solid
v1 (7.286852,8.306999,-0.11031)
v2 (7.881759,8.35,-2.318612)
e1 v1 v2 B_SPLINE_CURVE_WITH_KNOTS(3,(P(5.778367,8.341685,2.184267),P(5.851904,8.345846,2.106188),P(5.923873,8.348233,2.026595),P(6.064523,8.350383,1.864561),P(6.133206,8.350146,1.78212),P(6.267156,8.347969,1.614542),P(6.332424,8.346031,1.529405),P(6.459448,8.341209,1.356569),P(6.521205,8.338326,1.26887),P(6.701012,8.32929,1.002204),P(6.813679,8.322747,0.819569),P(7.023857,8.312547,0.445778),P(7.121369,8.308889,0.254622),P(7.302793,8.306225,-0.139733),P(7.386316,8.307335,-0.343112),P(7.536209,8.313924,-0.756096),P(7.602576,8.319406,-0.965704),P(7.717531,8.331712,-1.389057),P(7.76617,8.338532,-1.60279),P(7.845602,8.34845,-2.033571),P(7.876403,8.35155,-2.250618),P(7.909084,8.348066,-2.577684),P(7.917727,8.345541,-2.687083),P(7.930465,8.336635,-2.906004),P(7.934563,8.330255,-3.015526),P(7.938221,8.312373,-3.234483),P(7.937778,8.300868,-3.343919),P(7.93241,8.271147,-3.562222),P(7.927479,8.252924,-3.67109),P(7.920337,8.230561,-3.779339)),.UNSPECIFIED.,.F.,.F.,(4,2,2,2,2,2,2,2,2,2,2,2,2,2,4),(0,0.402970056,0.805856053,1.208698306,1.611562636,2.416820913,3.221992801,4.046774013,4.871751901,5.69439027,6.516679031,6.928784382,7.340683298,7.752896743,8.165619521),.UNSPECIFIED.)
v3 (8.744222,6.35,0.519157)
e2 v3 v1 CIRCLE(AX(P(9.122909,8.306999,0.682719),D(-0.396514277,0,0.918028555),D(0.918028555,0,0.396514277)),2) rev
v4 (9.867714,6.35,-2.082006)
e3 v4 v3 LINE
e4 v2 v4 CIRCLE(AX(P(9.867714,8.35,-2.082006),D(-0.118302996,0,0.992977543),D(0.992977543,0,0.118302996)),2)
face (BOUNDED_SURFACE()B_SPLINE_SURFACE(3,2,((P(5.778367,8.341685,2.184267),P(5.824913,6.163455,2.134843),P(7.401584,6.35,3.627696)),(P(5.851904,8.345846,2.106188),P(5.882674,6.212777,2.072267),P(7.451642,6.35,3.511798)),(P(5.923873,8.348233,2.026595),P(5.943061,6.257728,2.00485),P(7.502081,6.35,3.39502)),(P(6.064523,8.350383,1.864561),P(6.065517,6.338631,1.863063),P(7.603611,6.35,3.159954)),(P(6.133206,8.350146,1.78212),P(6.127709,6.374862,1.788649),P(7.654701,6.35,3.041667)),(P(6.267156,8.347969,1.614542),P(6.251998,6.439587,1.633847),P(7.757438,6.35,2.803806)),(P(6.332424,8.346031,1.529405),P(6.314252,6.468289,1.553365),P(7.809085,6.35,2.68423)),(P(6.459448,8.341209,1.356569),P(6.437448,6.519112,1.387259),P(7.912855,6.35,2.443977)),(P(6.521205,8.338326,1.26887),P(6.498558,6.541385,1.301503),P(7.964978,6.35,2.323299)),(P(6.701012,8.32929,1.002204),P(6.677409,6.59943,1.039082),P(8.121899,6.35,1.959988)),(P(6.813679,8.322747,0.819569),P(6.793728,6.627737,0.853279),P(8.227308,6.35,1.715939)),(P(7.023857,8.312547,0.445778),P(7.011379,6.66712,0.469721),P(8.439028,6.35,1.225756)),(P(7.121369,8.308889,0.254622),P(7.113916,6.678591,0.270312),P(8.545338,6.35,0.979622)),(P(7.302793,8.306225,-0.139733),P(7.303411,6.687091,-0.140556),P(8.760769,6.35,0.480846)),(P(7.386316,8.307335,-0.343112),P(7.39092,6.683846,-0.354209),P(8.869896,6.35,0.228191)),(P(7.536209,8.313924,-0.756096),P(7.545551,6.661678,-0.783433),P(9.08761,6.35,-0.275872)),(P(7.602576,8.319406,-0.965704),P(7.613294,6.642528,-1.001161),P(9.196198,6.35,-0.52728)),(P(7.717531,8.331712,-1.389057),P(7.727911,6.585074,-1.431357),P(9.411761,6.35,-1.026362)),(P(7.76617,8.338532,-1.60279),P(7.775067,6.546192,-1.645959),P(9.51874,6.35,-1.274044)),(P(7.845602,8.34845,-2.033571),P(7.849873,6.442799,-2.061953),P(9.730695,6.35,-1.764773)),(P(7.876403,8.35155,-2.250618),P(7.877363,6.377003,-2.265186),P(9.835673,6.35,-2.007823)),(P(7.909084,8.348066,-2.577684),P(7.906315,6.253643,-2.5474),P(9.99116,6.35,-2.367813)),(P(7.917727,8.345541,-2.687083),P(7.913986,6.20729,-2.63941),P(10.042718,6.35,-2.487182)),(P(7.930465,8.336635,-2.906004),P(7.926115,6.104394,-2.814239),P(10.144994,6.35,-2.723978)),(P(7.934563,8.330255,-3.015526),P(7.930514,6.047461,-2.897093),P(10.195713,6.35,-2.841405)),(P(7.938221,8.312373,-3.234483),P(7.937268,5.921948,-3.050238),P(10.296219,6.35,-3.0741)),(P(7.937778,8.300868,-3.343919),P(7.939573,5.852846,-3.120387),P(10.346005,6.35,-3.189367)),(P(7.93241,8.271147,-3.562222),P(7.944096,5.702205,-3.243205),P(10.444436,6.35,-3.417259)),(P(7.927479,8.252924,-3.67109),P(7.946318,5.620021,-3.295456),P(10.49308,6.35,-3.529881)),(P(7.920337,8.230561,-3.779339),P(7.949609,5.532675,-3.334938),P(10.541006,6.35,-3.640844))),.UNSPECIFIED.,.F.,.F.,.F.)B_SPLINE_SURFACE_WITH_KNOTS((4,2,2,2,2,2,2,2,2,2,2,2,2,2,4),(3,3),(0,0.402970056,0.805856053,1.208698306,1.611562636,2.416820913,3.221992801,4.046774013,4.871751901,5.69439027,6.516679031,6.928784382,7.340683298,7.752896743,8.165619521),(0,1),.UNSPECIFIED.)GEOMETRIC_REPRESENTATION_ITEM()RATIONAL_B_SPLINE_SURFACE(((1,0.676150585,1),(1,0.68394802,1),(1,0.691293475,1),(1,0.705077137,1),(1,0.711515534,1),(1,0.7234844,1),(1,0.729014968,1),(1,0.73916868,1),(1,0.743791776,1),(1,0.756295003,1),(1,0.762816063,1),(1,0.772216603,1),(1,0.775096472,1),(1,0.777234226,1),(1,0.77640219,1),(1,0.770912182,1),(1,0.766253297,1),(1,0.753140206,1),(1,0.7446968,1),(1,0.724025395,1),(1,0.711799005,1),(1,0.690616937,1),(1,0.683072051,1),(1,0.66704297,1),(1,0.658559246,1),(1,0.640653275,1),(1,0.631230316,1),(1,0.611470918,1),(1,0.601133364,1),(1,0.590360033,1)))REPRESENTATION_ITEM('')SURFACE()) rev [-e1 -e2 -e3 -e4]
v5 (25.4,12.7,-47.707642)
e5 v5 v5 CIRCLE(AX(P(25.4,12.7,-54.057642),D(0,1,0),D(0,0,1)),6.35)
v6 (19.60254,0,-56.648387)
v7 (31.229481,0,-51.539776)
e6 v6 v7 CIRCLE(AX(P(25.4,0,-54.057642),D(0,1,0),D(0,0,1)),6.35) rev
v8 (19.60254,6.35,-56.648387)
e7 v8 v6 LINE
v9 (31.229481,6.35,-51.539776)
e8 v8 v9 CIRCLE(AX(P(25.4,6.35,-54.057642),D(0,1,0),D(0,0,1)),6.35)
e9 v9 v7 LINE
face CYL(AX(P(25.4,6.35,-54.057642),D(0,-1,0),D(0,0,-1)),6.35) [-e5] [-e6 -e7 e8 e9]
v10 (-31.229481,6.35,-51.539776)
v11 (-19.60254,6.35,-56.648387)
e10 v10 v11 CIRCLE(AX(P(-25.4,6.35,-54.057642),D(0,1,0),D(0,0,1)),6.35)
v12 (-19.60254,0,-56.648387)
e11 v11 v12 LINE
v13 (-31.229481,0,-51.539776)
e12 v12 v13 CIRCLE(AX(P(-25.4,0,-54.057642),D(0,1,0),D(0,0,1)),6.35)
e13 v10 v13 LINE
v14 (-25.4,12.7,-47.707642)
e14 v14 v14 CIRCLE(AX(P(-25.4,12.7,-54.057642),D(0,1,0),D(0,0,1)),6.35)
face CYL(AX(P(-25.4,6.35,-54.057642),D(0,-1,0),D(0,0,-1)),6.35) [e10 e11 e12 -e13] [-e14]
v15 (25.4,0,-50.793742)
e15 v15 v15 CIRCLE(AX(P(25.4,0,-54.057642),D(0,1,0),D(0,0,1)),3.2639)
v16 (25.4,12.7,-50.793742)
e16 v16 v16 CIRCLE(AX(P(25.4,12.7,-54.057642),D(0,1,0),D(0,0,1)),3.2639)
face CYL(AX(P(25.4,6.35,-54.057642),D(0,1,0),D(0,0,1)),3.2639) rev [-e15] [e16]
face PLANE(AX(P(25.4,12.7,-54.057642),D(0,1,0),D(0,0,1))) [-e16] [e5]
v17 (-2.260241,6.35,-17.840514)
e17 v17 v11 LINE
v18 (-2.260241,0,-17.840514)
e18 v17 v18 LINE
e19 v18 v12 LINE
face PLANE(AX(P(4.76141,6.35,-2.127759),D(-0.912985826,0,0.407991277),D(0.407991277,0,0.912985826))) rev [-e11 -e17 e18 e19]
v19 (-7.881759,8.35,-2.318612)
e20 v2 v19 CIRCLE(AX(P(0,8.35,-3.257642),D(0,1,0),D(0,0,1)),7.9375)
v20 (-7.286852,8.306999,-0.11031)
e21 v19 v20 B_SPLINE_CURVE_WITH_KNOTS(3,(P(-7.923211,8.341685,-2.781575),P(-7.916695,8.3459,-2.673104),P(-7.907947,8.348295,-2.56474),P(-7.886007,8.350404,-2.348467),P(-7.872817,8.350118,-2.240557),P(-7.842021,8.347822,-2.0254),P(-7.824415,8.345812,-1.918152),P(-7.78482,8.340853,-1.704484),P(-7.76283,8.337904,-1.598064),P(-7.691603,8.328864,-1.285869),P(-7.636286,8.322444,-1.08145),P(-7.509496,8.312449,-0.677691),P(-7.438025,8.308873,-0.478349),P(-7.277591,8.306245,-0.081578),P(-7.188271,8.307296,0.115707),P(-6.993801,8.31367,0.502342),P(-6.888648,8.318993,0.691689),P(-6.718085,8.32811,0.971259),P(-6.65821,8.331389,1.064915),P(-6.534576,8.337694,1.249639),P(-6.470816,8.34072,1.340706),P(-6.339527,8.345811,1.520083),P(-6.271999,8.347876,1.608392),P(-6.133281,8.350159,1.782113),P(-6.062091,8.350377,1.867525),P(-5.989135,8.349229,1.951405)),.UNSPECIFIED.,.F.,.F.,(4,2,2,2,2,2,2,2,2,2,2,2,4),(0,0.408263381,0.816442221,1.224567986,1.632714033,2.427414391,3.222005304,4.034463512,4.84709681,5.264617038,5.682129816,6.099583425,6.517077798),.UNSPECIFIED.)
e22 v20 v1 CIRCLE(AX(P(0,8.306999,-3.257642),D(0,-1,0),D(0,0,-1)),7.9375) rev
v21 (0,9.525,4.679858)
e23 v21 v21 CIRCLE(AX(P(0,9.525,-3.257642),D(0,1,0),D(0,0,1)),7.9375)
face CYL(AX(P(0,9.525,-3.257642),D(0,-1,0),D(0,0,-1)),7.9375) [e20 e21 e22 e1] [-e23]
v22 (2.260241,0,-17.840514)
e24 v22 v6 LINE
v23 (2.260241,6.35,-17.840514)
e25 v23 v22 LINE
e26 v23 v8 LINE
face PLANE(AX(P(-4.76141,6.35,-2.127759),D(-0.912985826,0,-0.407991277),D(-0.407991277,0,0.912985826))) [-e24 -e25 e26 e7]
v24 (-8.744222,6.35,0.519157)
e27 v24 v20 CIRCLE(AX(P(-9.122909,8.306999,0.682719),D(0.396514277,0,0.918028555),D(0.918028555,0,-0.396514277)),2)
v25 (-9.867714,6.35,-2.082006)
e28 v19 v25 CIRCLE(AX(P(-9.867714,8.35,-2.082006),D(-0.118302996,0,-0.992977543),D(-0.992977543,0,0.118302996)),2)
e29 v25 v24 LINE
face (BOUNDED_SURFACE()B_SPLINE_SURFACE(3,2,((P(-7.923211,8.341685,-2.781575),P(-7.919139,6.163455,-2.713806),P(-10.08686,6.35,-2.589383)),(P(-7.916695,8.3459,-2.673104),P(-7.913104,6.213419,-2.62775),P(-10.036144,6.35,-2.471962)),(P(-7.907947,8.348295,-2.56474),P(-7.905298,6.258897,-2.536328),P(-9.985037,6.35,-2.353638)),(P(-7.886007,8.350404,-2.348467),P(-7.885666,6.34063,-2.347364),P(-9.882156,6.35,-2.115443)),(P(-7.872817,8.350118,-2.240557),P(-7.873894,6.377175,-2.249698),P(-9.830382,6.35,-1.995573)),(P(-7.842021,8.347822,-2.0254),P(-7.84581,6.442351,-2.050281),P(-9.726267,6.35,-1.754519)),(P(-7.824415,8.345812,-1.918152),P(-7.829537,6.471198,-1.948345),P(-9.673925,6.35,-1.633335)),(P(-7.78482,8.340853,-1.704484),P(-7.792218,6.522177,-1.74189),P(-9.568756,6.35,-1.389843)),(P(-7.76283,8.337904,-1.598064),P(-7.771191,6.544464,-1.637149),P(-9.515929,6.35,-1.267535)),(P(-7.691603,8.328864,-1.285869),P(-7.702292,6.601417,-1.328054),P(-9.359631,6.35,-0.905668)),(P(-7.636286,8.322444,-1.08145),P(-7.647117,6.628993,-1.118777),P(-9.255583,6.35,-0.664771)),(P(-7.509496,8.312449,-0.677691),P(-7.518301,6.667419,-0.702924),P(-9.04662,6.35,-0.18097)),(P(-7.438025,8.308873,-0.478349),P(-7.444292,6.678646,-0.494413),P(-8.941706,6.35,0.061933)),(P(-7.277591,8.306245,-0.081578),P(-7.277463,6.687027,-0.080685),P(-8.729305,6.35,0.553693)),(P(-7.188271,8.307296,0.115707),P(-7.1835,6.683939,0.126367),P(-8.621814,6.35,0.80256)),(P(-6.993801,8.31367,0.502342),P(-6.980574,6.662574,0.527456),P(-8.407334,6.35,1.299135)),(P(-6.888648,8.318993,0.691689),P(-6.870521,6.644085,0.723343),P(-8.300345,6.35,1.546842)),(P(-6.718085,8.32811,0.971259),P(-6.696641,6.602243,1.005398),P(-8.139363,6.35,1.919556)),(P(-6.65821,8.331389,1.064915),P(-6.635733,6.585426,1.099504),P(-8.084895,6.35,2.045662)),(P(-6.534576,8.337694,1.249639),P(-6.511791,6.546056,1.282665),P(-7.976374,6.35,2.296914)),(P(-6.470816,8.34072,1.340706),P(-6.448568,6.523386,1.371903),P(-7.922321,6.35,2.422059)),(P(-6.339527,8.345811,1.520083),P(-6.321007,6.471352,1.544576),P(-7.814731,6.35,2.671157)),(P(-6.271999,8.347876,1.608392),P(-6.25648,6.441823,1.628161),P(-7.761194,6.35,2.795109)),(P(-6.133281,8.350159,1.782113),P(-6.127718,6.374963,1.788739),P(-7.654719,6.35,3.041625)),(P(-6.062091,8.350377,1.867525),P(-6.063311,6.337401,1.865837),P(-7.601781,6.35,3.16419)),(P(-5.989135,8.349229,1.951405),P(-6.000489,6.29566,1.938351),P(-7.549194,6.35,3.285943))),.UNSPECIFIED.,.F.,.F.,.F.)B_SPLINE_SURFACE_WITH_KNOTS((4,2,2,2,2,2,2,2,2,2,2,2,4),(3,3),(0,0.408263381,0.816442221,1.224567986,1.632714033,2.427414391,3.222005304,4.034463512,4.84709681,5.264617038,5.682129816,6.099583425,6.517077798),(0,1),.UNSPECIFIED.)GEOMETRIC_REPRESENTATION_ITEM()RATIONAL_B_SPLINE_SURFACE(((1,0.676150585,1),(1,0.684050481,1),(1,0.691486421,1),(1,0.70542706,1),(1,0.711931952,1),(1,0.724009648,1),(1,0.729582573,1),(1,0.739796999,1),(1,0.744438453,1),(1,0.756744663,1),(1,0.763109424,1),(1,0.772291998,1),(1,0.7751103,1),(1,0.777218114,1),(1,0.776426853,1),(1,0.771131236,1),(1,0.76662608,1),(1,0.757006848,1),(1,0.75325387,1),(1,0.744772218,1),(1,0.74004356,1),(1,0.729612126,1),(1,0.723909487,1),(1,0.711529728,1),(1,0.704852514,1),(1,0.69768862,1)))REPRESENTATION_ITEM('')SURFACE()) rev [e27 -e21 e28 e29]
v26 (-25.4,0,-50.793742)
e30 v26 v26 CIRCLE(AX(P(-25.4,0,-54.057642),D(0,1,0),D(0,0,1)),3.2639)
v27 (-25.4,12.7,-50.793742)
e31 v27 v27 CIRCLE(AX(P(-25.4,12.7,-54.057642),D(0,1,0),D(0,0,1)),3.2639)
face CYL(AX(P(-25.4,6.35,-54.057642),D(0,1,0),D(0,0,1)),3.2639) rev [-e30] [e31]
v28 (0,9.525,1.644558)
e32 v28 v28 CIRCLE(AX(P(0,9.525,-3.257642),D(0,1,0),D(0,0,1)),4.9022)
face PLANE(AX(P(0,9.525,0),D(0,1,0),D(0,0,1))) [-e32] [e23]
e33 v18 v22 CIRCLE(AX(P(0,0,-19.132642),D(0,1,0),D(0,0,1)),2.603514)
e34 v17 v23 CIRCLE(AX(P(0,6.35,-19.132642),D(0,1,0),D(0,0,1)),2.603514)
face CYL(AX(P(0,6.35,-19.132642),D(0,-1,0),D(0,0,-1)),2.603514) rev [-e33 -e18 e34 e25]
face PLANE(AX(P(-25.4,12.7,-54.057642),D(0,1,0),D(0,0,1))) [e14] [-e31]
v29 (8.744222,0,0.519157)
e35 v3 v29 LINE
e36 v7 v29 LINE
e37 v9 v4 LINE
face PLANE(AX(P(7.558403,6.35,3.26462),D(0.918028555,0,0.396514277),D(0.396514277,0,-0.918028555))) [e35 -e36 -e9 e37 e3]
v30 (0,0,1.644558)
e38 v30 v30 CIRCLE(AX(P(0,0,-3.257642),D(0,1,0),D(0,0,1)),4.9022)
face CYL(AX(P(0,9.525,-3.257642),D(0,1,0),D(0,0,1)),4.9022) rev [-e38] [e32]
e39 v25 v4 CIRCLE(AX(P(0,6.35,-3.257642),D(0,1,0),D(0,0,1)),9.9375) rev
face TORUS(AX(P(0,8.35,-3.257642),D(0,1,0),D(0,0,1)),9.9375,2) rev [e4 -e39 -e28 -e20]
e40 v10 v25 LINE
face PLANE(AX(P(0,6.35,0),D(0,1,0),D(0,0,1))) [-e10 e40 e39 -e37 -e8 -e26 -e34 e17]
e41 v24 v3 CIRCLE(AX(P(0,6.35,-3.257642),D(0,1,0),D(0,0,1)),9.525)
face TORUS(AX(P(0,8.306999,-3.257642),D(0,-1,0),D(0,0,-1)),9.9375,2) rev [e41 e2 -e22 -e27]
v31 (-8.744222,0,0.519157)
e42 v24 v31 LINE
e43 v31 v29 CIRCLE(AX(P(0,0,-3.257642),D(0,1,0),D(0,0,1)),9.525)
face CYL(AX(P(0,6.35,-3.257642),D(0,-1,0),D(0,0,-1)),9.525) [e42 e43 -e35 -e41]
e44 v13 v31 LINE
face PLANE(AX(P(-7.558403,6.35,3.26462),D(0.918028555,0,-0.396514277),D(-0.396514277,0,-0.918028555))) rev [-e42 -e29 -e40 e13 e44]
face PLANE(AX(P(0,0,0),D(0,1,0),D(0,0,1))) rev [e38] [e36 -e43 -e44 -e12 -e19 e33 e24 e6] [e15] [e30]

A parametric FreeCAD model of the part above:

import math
import FreeCAD as App
import Part
import Sketcher

V = App.Vector
Q = App.Units.Quantity


def edges_at(feature, points):
    """Names of the edges that pass closest to the given points."""
    edges = feature.Shape.Edges
    near = lambda p: min(range(len(edges)), key=lambda i: edges[i].distToShape(Part.Vertex(*p))[0])
    return sorted({f"Edge{near(p) + 1}" for p in points})

doc = App.newDocument("Part")
body = doc.addObject("PartDesign::Body", "Body")

sketch1 = body.newObject("Sketcher::SketchObject", "Sketch")
sketch1.AttachmentSupport = (doc.getObject("XZ_Plane"), [""])
sketch1.MapMode = "FlatFace"
sketch1.addGeometry([
    Part.ArcOfCircle(Part.Circle(V(0, -19.132642, 0), V(0, 0, 1), 2.603514), math.radians(29.755624), math.radians(150.244376)),
    Part.LineSegment(V(-2.260241, -17.840514, 0), V(-19.60254, -56.648387, 0)),
    Part.ArcOfCircle(Part.Circle(V(-25.4, -54.057642, 0), V(0, 0, 1), 6.35), math.radians(156.639551), math.radians(335.921288)),
    Part.LineSegment(V(-31.229481, -51.539776, 0), V(-8.744222, 0.519157, 0)),
    Part.ArcOfCircle(Part.Circle(V(0, -3.257642, 0), V(0, 0, 1), 9.525), math.radians(23.360449), math.radians(156.639551)),
    Part.LineSegment(V(8.744222, 0.519157, 0), V(31.229481, -51.539776, 0)),
    Part.ArcOfCircle(Part.Circle(V(25.4, -54.057642, 0), V(0, 0, 1), 6.35), math.radians(-155.921288), math.radians(23.360449)),
    Part.LineSegment(V(19.60254, -56.648387, 0), V(2.260241, -17.840514, 0)),
    Part.Circle(V(0, -3.257642, 0), V(0, 0, 1), 7.9375),
], False)
sketch1.addConstraint([
    Sketcher.Constraint("Coincident", 0, 2, 1, 1),
    Sketcher.Constraint("Tangent", 1, 2, 2, 2),
    Sketcher.Constraint("Tangent", 2, 1, 3, 1),
    Sketcher.Constraint("Tangent", 3, 2, 4, 2),
    Sketcher.Constraint("Tangent", 4, 1, 5, 1),
    Sketcher.Constraint("Tangent", 5, 2, 6, 2),
    Sketcher.Constraint("Tangent", 6, 1, 7, 1),
    Sketcher.Constraint("Coincident", 7, 2, 0, 1),
    Sketcher.Constraint("Coincident", 8, 3, 4, 3),
    Sketcher.Constraint("Equal", 2, 6),
    Sketcher.Constraint("Symmetric", 2, 3, 6, 3, -2),
    Sketcher.Constraint("Symmetric", 0, 2, 7, 2, -2),
    Sketcher.Constraint("PointOnObject", 4, 3, -2),
    Sketcher.Constraint("Radius", 2, Q("0.25 in")),
    Sketcher.Constraint("Diameter", 8, Q("0.625 in")),
    Sketcher.Constraint("DistanceX", 2, 3, -1, 1, Q("1 in")),
    Sketcher.Constraint("Radius", 4, Q("0.375 in")),
    Sketcher.Constraint("DistanceY", 2, 3, 4, 3, Q("2 in")),
    Sketcher.Constraint("DistanceY", 2, 3, 0, 3, Q("1.375 in")),
    Sketcher.Constraint("Radius", 0, Q("2.603514 mm")),
    Sketcher.Constraint("DistanceX", 1, 2, 0, 2, Q("17.342299 mm")),
    Sketcher.Constraint("DistanceY", 0, 3, -1, 1, Q("19.132642 mm")),
])
pad1 = body.newObject("PartDesign::Pad", "Pad")
pad1.Profile = sketch1
pad1.Length = Q("0.25 in")
pad1.Reversed = True

sketch2 = body.newObject("Sketcher::SketchObject", "Sketch001")
sketch2.AttachmentSupport = (doc.getObject("XZ_Plane"), [""])
sketch2.MapMode = "FlatFace"
sketch2.AttachmentOffset = App.Placement(V(0, 0, -0.25 * 25.4), App.Rotation())
sketch2.addGeometry([
    Part.Circle(V(-25.4, -54.057642, 0), V(0, 0, 1), 3.2639),
    Part.Circle(V(25.4, -54.057642, 0), V(0, 0, 1), 3.2639),
], False)
sketch2.addConstraint([
    Sketcher.Constraint("Equal", 0, 1),
    Sketcher.Constraint("Symmetric", 0, 3, 1, 3, -2),
    Sketcher.Constraint("Diameter", 0, Q("0.257 in")),
    Sketcher.Constraint("DistanceX", 0, 3, -1, 1, Q("1 in")),
    Sketcher.Constraint("DistanceY", 0, 3, -1, 1, Q("54.057642 mm")),
])
doc.recompute()
hole = body.newObject("PartDesign::Hole", "Hole")
hole.Profile = sketch2
hole.ThreadType = "None"
hole.Diameter = Q("0.257 in")
hole.DepthType = "ThroughAll"
hole.Reversed = True

sketch3 = body.newObject("Sketcher::SketchObject", "Sketch002")
sketch3.AttachmentSupport = (doc.getObject("XZ_Plane"), [""])
sketch3.MapMode = "FlatFace"
sketch3.addGeometry(Part.Circle(V(0, -3.257642, 0), V(0, 0, 1), 7.9375), False)
sketch3.addConstraint([
    Sketcher.Constraint("PointOnObject", 0, 3, -2),
    Sketcher.Constraint("Diameter", 0, Q("0.625 in")),
    Sketcher.Constraint("DistanceY", 0, 3, -1, 1, Q("3.257642 mm")),
])
pad2 = body.newObject("PartDesign::Pad", "Pad001")
pad2.Profile = sketch3
pad2.Length = Q("0.375 in")
pad2.Reversed = True

sketch4 = body.newObject("Sketcher::SketchObject", "Sketch003")
sketch4.AttachmentSupport = (doc.getObject("XZ_Plane"), [""])
sketch4.MapMode = "FlatFace"
sketch4.AttachmentOffset = App.Placement(V(0, 0, -0.375 * 25.4), App.Rotation())
sketch4.addGeometry(Part.Circle(V(0, -3.257642, 0), V(0, 0, 1), 4.9022), False)
sketch4.addConstraint([
    Sketcher.Constraint("PointOnObject", 0, 3, -2),
    Sketcher.Constraint("Diameter", 0, Q("0.386 in")),
    Sketcher.Constraint("DistanceY", 0, 3, -1, 1, Q("3.257642 mm")),
])
doc.recompute()
hole2 = body.newObject("PartDesign::Hole", "Hole001")
hole2.Profile = sketch4
hole2.ThreadType = "None"
hole2.Diameter = Q("0.386 in")
hole2.DepthType = "ThroughAll"
hole2.Reversed = True
doc.recompute()

fillet = body.newObject("PartDesign::Fillet", "Fillet")
fillet.Base = (hole2, edges_at(hole2, [(0, 6.35, 4.68)]))
fillet.Radius = 2

sketch5 = body.newObject("Sketcher::SketchObject", "Sketch004")
sketch5.AttachmentSupport = (doc.getObject("XZ_Plane"), [""])
sketch5.MapMode = "FlatFace"
sketch5.AttachmentOffset = App.Placement(V(0, 0, -0.25 * 25.4), App.Rotation())
sketch5.addGeometry([
    Part.Circle(V(-25.4, -54.057642, 0), V(0, 0, 1), 4.961001),
    Part.Circle(V(25.4, -54.057642, 0), V(0, 0, 1), 4.961001),
], False)
sketch5.addConstraint([
    Sketcher.Constraint("Equal", 0, 1),
    Sketcher.Constraint("Symmetric", 0, 3, 1, 3, -2),
    Sketcher.Constraint("DistanceX", 0, 3, -1, 1, Q("1 in")),
    Sketcher.Constraint("Diameter", 0, Q("9.922002 mm")),
    Sketcher.Constraint("DistanceY", 0, 3, -1, 1, Q("54.057642 mm")),
])
doc.recompute()
hole3 = body.newObject("PartDesign::Hole", "Hole002")
hole3.Profile = sketch5
hole3.ThreadType = "None"
hole3.Diameter = 9.922002
hole3.DepthType = "Dimension"
hole3.Depth = Q("0.06 in")
hole3.DrillPoint = "Flat"
hole3.Reversed = True

sketch6 = body.newObject("Sketcher::SketchObject", "Sketch005")
sketch6.AttachmentSupport = (doc.getObject("XZ_Plane"), [""])
sketch6.MapMode = "FlatFace"
sketch6.AttachmentOffset = App.Placement(V(0, 0, -0.25 * 25.4), App.Rotation())
sketch6.addGeometry([
    Part.Circle(V(25.4, -54.057642, 0), V(0, 0, 1), 6.35),
    Part.Circle(V(25.4, -54.057642, 0), V(0, 0, 1), 3.2639),
    Part.Circle(V(-25.4, -54.057642, 0), V(0, 0, 1), 6.35),
    Part.Circle(V(-25.4, -54.057642, 0), V(0, 0, 1), 3.2639),
], False)
sketch6.addConstraint([
    Sketcher.Constraint("Coincident", 1, 3, 0, 3),
    Sketcher.Constraint("Coincident", 3, 3, 2, 3),
    Sketcher.Constraint("Equal", 0, 2),
    Sketcher.Constraint("Equal", 1, 3),
    Sketcher.Constraint("Symmetric", 0, 3, 2, 3, -2),
    Sketcher.Constraint("Diameter", 0, Q("0.5 in")),
    Sketcher.Constraint("Diameter", 1, Q("0.257 in")),
    Sketcher.Constraint("DistanceX", -1, 1, 0, 3, Q("1 in")),
    Sketcher.Constraint("DistanceY", 0, 3, -1, 1, Q("54.057642 mm")),
])
pad3 = body.newObject("PartDesign::Pad", "Pad002")
pad3.Profile = sketch6
pad3.Type = "TwoLengths"
pad3.Length = Q("0.25 in")
pad3.Length2 = Q("0.1 in")
pad3.Reversed = True

doc.recompute()
